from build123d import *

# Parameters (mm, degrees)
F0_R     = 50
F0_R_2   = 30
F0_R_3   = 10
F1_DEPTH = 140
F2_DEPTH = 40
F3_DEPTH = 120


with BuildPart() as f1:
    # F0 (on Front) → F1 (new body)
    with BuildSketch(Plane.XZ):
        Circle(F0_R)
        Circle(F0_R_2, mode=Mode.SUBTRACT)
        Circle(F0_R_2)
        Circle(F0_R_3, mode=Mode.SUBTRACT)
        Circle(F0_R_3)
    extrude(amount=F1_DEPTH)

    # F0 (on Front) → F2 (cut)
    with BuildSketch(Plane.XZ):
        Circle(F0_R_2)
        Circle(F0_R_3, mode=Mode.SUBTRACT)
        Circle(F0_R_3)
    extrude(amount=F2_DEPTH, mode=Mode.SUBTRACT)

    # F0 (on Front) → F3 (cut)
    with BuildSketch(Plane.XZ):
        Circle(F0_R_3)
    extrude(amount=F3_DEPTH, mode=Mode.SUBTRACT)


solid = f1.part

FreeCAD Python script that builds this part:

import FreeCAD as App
import Part
import Sketcher
from FreeCAD import Vector

doc = App.newDocument("Part")
params = doc.addObject("Spreadsheet::Sheet", "Params")
for row, (alias, value) in enumerate([
    ("sketch1_diameter", "100 mm"),
    ("pad1_length", "140 mm"),
    ("sketch2_diameter", "60 mm"),
    ("pocket1_length", "40 mm"),
    ("sketch3_diameter", "20 mm"),
    ("pocket2_length", "120 mm"),
], start=1):
    params.set(f"A{row}", alias)
    params.set(f"B{row}", "=" + value)
    params.setAlias(f"B{row}", alias)

body = doc.addObject("PartDesign::Body", "Body")

# Sketch on XZ plane
sketch1 = body.newObject("Sketcher::SketchObject", "Sketch")
sketch1.AttachmentSupport = (doc.getObject("XZ_Plane"), [""])
sketch1.MapMode = "FlatFace"
sketch1.addGeometry(Part.Circle(Vector(0, 0, 0), Vector(0, 0, 1), 50), False)
sketch1.addConstraint(Sketcher.Constraint("Coincident", 0, 3, -1, 1))
sketch1.addConstraint(Sketcher.Constraint("Diameter", 0, 100.0))
sketch1.setExpression("Constraints[1]", "Params.sketch1_diameter")
pad1 = body.newObject("PartDesign::Pad", "Pad")
pad1.Profile = sketch1
pad1.setExpression("Length", "Params.pad1_length")

# Sketch on XZ plane
sketch2 = body.newObject("Sketcher::SketchObject", "Sketch001")
sketch2.AttachmentSupport = (doc.getObject("XZ_Plane"), [""])
sketch2.MapMode = "FlatFace"
sketch2.addGeometry(Part.Circle(Vector(0, 0, 0), Vector(0, 0, 1), 30), False)
sketch2.addConstraint(Sketcher.Constraint("Coincident", 0, 3, -1, 1))
sketch2.addConstraint(Sketcher.Constraint("Diameter", 0, 60.0))
sketch2.setExpression("Constraints[1]", "Params.sketch2_diameter")
pocket1 = body.newObject("PartDesign::Pocket", "Pocket")
pocket1.Profile = sketch2
pocket1.setExpression("Length", "Params.pocket1_length")
pocket1.Reversed = True

# Sketch on XZ plane
sketch3 = body.newObject("Sketcher::SketchObject", "Sketch002")
sketch3.AttachmentSupport = (doc.getObject("XZ_Plane"), [""])
sketch3.MapMode = "FlatFace"
sketch3.addGeometry(Part.Circle(Vector(0, 0, 0), Vector(0, 0, 1), 10), False)
sketch3.addConstraint(Sketcher.Constraint("Coincident", 0, 3, -1, 1))
sketch3.addConstraint(Sketcher.Constraint("Diameter", 0, 20.0))
sketch3.setExpression("Constraints[1]", "Params.sketch3_diameter")
pocket2 = body.newObject("PartDesign::Pocket", "Pocket001")
pocket2.Profile = sketch3
pocket2.setExpression("Length", "Params.pocket2_length")
pocket2.Reversed = True

doc.recompute()
